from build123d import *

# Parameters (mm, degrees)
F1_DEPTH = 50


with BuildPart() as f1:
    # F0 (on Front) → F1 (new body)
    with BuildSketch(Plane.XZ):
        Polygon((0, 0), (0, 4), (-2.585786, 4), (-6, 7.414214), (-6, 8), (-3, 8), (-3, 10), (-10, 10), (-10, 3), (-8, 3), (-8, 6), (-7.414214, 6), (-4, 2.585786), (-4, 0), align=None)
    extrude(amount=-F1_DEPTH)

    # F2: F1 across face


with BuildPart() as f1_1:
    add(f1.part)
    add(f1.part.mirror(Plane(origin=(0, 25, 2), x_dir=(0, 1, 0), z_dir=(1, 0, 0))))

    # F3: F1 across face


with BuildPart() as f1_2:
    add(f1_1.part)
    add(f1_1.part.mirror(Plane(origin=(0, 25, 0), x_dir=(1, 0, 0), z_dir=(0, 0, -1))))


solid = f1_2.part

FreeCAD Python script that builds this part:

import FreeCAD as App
import Part
import Sketcher

V = App.Vector
Q = App.Units.Quantity


def add_polygon(sketch, points):
    """Adds a closed chain of lines whose ends are joined by coincident constraints."""
    first, n = sketch.GeometryCount, len(points)
    for a, b in zip(points, points[1:] + points[:1]):
        sketch.addGeometry(Part.LineSegment(App.Vector(*a, 0), App.Vector(*b, 0)), False)
    for i in range(n):
        sketch.addConstraint(Sketcher.Constraint("Coincident", first + i, 2, first + (i + 1) % n, 1))

doc = App.newDocument("Part")
body = doc.addObject("PartDesign::Body", "Body")

# Sketch on XZ plane
sketch1 = doc.addObject("Sketcher::SketchObject", "Sketch")
body.addObject(sketch1)
sketch1.AttachmentSupport = (doc.XZ_Plane, [""])
sketch1.MapMode = "FlatFace"
add_polygon(sketch1, [(0, 0), (0, 4), (-2.6, 4), (-6, 7.4), (-6, 8), (-3, 8), (-3, 10), (-10, 10), (-10, 3), (-8, 3), (-8, 6), (-7.4, 6), (-4, 2.6), (-4, 0)])  # lines 0-13
sketch1.addConstraint(Sketcher.Constraint("Vertical", 0))
sketch1.addConstraint(Sketcher.Constraint("Horizontal", 1))
sketch1.addConstraint(Sketcher.Constraint("Vertical", 3))
sketch1.addConstraint(Sketcher.Constraint("Horizontal", 4))
sketch1.addConstraint(Sketcher.Constraint("Vertical", 5))
sketch1.addConstraint(Sketcher.Constraint("Horizontal", 6))
sketch1.addConstraint(Sketcher.Constraint("Vertical", 7))
sketch1.addConstraint(Sketcher.Constraint("Horizontal", 8))
sketch1.addConstraint(Sketcher.Constraint("Vertical", 9))
sketch1.addConstraint(Sketcher.Constraint("Horizontal", 10))
sketch1.addConstraint(Sketcher.Constraint("Vertical", 12))
sketch1.addConstraint(Sketcher.Constraint("Horizontal", 13))
sketch1.addConstraint(Sketcher.Constraint("Coincident", 13, 2, -1, 1))
sketch1.addConstraint(Sketcher.Constraint("Parallel", 2, 11))
sketch1.addConstraint(Sketcher.Constraint("Equal", 13, 0))
sketch1.addConstraint(Sketcher.Constraint("Equal", 10, 3))
sketch1.addConstraint(Sketcher.Constraint("Equal", 8, 5))
sketch1.addConstraint(Sketcher.Constraint("Equal", 6, 7))
sketch1.addConstraint(Sketcher.Constraint("Equal", 4, 9))
sketch1.addConstraint(Sketcher.Constraint("Equal", 1, 12))
sketch1.addConstraint(Sketcher.Constraint("DistanceX", 4, 1, 4, 2, 3.0))
sketch1.addConstraint(Sketcher.Constraint("DistanceX", 6, 2, 6, 1, 7.0))
sketch1.addConstraint(Sketcher.Constraint("DistanceX", 8, 1, 8, 2, 2.0))
sketch1.addConstraint(Sketcher.Constraint("DistanceX", 13, 1, 13, 2, 4.0))
sketch1.addConstraint(Sketcher.Constraint("Angle", 2, Q("135 deg")))
sketch1.addConstraint(Sketcher.Constraint("DistanceX", 2, 2, -1, 1, 6.0))
sketch1.addConstraint(Sketcher.Constraint("DistanceX", 1, 2, 1, 1, 2.585786))
pad1 = doc.addObject("PartDesign::Pad", "Pad")
body.addObject(pad1)
pad1.Profile = sketch1
pad1.Length = 50
pad1.Reversed = True
body2 = doc.addObject("PartDesign::Body", "Body001")
doc.recompute()

body2.BaseFeature = body
doc.recompute()

mirroring = doc.addObject("Part::Mirroring", "Mirroring")
mirroring.Source = body
mirroring.Base = V(0, 25, 2)
mirroring.Normal = V(1, 0, 0)
body3 = doc.addObject("PartDesign::Body", "Body002")
body3.BaseFeature = mirroring
boolean = doc.addObject("PartDesign::Boolean", "Boolean")
body2.addObject(boolean)
boolean.Type = "Fuse"
boolean.addObjects([body3])
doc.recompute()
body4 = doc.addObject("PartDesign::Body", "Body003")
doc.recompute()

body4.BaseFeature = body2
doc.recompute()

mirroring2 = doc.addObject("Part::Mirroring", "Mirroring001")
mirroring2.Source = body2
mirroring2.Base = V(0, 25, 0)
mirroring2.Normal = V(0, 0, -1)
body5 = doc.addObject("PartDesign::Body", "Body004")
body5.BaseFeature = mirroring2
boolean2 = doc.addObject("PartDesign::Boolean", "Boolean001")
body4.addObject(boolean2)
boolean2.Type = "Fuse"
boolean2.addObjects([body5])
doc.recompute()
mirroring.Visibility = False
mirroring2.Visibility = False

doc.recompute()
